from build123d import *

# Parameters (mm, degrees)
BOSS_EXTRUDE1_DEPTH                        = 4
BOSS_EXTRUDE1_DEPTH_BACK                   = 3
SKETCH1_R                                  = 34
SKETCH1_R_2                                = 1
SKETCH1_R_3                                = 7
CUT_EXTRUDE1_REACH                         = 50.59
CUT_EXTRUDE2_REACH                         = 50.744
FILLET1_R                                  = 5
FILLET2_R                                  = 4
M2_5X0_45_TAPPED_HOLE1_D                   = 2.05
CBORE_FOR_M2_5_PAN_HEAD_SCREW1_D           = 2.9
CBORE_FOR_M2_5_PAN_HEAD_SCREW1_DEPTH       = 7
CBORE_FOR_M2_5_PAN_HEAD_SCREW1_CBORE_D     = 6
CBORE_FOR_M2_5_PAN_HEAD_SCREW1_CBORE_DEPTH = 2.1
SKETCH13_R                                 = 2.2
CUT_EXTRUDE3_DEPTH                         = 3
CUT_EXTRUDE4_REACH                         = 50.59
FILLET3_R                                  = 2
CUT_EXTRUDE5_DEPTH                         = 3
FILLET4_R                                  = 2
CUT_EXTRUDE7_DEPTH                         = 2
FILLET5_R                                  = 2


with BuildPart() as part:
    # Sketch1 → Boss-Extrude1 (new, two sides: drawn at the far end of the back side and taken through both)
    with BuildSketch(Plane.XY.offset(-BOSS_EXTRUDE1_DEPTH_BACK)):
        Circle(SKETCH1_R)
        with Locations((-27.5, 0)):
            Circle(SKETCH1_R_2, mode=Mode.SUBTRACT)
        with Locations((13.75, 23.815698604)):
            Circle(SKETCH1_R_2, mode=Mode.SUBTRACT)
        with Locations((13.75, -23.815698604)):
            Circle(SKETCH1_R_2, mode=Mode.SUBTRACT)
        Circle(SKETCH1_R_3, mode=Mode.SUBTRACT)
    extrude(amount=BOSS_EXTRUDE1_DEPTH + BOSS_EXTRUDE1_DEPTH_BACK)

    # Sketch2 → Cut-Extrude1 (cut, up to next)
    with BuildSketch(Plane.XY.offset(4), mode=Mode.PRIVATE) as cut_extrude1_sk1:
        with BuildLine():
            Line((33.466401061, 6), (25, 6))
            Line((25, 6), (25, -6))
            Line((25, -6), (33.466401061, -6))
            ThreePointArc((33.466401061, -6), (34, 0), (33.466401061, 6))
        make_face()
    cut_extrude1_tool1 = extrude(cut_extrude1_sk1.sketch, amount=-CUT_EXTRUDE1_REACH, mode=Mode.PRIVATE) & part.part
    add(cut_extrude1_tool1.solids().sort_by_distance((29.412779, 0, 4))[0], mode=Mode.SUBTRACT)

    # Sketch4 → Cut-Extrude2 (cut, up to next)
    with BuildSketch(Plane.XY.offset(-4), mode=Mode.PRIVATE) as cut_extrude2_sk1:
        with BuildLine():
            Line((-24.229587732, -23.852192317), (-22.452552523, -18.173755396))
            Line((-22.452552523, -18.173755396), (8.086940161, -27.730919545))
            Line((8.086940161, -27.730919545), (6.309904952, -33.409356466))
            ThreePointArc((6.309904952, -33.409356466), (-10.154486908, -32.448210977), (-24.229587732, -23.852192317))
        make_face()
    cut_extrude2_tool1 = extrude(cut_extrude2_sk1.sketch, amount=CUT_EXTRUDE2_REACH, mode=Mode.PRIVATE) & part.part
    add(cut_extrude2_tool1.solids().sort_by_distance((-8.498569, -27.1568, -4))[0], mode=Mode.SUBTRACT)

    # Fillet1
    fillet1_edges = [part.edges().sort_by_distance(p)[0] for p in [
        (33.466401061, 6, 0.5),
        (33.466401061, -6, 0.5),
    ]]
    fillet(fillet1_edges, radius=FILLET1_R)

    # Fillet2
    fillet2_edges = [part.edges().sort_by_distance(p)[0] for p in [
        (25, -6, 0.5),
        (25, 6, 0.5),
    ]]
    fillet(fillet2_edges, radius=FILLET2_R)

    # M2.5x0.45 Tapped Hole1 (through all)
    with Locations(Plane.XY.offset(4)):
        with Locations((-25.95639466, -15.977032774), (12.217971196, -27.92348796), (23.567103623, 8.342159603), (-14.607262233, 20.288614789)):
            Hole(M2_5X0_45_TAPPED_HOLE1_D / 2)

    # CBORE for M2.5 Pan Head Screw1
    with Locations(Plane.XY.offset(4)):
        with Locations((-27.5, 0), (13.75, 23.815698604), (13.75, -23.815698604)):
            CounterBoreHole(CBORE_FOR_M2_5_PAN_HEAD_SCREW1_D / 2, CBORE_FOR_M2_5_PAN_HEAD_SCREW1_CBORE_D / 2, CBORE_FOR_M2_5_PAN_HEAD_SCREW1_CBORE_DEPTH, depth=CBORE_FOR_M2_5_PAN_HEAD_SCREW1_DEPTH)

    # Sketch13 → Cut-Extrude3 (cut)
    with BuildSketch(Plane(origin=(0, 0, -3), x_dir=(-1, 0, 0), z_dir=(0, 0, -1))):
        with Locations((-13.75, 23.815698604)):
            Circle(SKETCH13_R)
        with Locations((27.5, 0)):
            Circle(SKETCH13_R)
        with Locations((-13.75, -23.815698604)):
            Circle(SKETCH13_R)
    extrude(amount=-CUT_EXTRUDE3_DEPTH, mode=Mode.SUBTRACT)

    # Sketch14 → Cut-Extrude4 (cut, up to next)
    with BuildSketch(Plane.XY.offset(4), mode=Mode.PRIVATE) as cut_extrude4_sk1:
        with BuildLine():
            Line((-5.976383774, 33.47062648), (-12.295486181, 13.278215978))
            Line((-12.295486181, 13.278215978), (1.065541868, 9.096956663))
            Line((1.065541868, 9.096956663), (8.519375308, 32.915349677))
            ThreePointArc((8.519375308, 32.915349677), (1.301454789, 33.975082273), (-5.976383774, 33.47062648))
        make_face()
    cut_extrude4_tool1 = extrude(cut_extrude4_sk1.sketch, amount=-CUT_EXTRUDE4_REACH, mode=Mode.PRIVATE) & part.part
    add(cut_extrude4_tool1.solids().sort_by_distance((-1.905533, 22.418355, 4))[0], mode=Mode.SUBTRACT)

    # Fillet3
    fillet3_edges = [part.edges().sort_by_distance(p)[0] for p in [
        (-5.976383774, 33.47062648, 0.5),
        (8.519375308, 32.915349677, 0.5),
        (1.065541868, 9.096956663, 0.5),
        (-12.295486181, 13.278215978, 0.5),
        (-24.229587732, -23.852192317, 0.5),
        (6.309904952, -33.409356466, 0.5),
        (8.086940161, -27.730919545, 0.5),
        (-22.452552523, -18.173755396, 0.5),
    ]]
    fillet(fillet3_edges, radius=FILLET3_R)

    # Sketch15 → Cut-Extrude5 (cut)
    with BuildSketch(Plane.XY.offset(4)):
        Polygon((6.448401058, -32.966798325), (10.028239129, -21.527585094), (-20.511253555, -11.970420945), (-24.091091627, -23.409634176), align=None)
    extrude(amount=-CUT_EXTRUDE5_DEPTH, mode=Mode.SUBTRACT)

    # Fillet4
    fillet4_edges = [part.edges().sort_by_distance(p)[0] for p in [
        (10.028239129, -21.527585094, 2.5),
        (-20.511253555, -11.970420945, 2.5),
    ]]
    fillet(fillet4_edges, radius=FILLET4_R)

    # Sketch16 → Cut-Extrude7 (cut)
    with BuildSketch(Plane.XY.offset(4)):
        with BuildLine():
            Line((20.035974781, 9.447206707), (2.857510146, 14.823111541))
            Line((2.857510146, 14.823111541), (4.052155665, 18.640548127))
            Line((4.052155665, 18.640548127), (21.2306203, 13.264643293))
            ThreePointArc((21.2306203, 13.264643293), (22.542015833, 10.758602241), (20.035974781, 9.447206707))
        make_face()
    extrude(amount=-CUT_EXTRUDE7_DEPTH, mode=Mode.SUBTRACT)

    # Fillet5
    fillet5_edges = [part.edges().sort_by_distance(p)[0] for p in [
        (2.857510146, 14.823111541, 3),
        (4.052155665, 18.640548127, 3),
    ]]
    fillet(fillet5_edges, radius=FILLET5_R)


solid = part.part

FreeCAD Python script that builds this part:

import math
import FreeCAD as App
import Part
import Sketcher


def edges_at(feature, points):
    """Names of the edges that pass closest to the given points."""
    edges = feature.Shape.Edges
    near = lambda p: min(range(len(edges)), key=lambda i: edges[i].distToShape(Part.Vertex(*p))[0])
    return sorted({f"Edge{near(p) + 1}" for p in points})


def add_polygon(sketch, points):
    """Adds a closed chain of lines whose ends are joined by coincident constraints."""
    first, n = sketch.GeometryCount, len(points)
    for a, b in zip(points, points[1:] + points[:1]):
        sketch.addGeometry(Part.LineSegment(App.Vector(*a, 0), App.Vector(*b, 0)), False)
    for i in range(n):
        sketch.addConstraint(Sketcher.Constraint("Coincident", first + i, 2, first + (i + 1) % n, 1))

doc = App.newDocument("Part")
body = doc.addObject("PartDesign::Body", "Body")

# Sketch on XY plane
sketch1 = body.newObject("Sketcher::SketchObject", "Sketch")
sketch1.AttachmentSupport = (doc.getObject("XY_Plane"), [""])
sketch1.MapMode = "FlatFace"
sketch1.addGeometry([
    Part.Circle(App.Vector(0, 0, 0), App.Vector(0, 0, 1), 34),  # 0
    Part.Circle(App.Vector(13.8, -23.8, 0), App.Vector(0, 0, 1), 1),  # 1
    Part.Circle(App.Vector(-27.5, 0, 0), App.Vector(0, 0, 1), 1),  # 2
    Part.Circle(App.Vector(0, 0, 0), App.Vector(0, 0, 1), 7),  # 3
    Part.Circle(App.Vector(13.8, 23.8, 0), App.Vector(0, 0, 1), 1),  # 4
], False)
sketch1.addConstraint([
    Sketcher.Constraint("Coincident", 0, 3, -1, 1),
    Sketcher.Constraint("Coincident", 3, 3, -1, 1),
    Sketcher.Constraint("Equal", 1, 2),
    Sketcher.Constraint("Equal", 2, 4),
    Sketcher.Constraint("Symmetric", 1, 3, 4, 3, -1),
    Sketcher.Constraint("PointOnObject", 2, 3, -1),
    Sketcher.Constraint("Diameter", 0, 68.0),
    Sketcher.Constraint("Diameter", 1, 2.0),
    Sketcher.Constraint("Diameter", 3, 14.0),
    Sketcher.Constraint("DistanceX", 2, 3, -1, 1, 27.5),
    Sketcher.Constraint("DistanceX", -1, 1, 1, 3, 13.75),
    Sketcher.Constraint("DistanceY", 1, 3, -1, 1, 23.815699),
])
pad1 = body.newObject("PartDesign::Pad", "Pad")
pad1.Profile = sketch1
pad1.Type = "TwoLengths"
pad1.Length = 4
pad1.Length2 = 3

# Sketch on XY plane
sketch2 = body.newObject("Sketcher::SketchObject", "Sketch001")
sketch2.AttachmentSupport = (doc.getObject("XY_Plane"), [""])
sketch2.MapMode = "FlatFace"
sketch2.AttachmentOffset = App.Placement(App.Vector(0, 0, 4), App.Rotation())
sketch2.addGeometry([
    Part.LineSegment(App.Vector(33, 6, 0), App.Vector(25, 6, 0)),
    Part.LineSegment(App.Vector(25, 6, 0), App.Vector(25, -6, 0)),
    Part.LineSegment(App.Vector(25, -6, 0), App.Vector(33, -6, 0)),
    Part.ArcOfCircle(Part.Circle(App.Vector(0, 0, 0), App.Vector(0, 0, 1), 34), math.radians(-10), math.radians(10)),
], False)
sketch2.addConstraint([
    Sketcher.Constraint("Coincident", 0, 2, 1, 1),
    Sketcher.Constraint("Coincident", 1, 2, 2, 1),
    Sketcher.Constraint("Coincident", 2, 2, 3, 1),
    Sketcher.Constraint("Coincident", 3, 2, 0, 1),
    Sketcher.Constraint("Horizontal", 0),
    Sketcher.Constraint("Vertical", 1),
    Sketcher.Constraint("Horizontal", 2),
    Sketcher.Constraint("Coincident", 3, 3, -1, 1),
    Sketcher.Constraint("Vertical", 2, 2, 3, 2),
    Sketcher.Constraint("Radius", 3, 34.0),
    Sketcher.Constraint("DistanceY", 1, 2, 1, 1, 12.0),
    Sketcher.Constraint("DistanceX", -1, 1, 0, 2, 25.0),
])
pocket1 = body.newObject("PartDesign::Pocket", "Pocket")
pocket1.Profile = sketch2
pocket1.Type = "UpToFirst"

# Sketch on XY plane
sketch3 = body.newObject("Sketcher::SketchObject", "Sketch002")
sketch3.AttachmentSupport = (doc.getObject("XY_Plane"), [""])
sketch3.MapMode = "FlatFace"
sketch3.AttachmentOffset = App.Placement(App.Vector(0, 0, -4), App.Rotation())
sketch3.addGeometry([
    Part.LineSegment(App.Vector(-22, -18, 0), App.Vector(-24, -24, 0)),
    Part.ArcOfCircle(Part.Circle(App.Vector(0, 0, 0), App.Vector(0, 0, 1), 34), math.radians(-135), math.radians(-79)),
    Part.LineSegment(App.Vector(6, -33, 0), App.Vector(8, -28, 0)),
    Part.LineSegment(App.Vector(8, -28, 0), App.Vector(-22, -18, 0)),
], False)
sketch3.addConstraint([
    Sketcher.Constraint("Coincident", 0, 2, 1, 1),
    Sketcher.Constraint("Coincident", 1, 2, 2, 1),
    Sketcher.Constraint("Coincident", 2, 2, 3, 1),
    Sketcher.Constraint("Coincident", 3, 2, 0, 1),
    Sketcher.Constraint("Coincident", 1, 3, -1, 1),
    Sketcher.Constraint("Parallel", 0, 2),
    Sketcher.Constraint("Perpendicular", 2, 3),
    Sketcher.Constraint("Equal", 0, 2),
    Sketcher.Constraint("Radius", 1, 34.0),
    Sketcher.Constraint("Distance", 3, 32.0),
    Sketcher.Constraint("Distance", 0, 5.95),
    Sketcher.Constraint("DistanceY", 1, 2, 3, 2, 15.235601),
])
pocket2 = body.newObject("PartDesign::Pocket", "Pocket001")
pocket2.Profile = sketch3
pocket2.Length = 8
pocket2.Reversed = True
doc.recompute()

fillet = body.newObject("PartDesign::Fillet", "Fillet")
fillet.Base = (pocket2, edges_at(pocket2, [(33.466, 6, 0.5), (33.466, -6, 0.5)]))
fillet.Radius = 5
doc.recompute()

fillet2 = body.newObject("PartDesign::Fillet", "Fillet001")
fillet2.Base = (fillet, edges_at(fillet, [(25, -6, 0.5), (25, 6, 0.5)]))
fillet2.Radius = 4

# Sketch on XY plane
sketch4 = body.newObject("Sketcher::SketchObject", "Sketch003")
sketch4.AttachmentSupport = (doc.getObject("XY_Plane"), [""])
sketch4.MapMode = "FlatFace"
sketch4.AttachmentOffset = App.Placement(App.Vector(0, 0, 4), App.Rotation())
sketch4.addGeometry([
    Part.Circle(App.Vector(-26, -16, 0), App.Vector(0, 0, 1), 1),
    Part.Circle(App.Vector(12.2, -27.9, 0), App.Vector(0, 0, 1), 1),
    Part.Circle(App.Vector(23.6, 8.3, 0), App.Vector(0, 0, 1), 1),
    Part.Circle(App.Vector(-14.6, 20.3, 0), App.Vector(0, 0, 1), 1),
], False)
sketch4.addConstraint([
    Sketcher.Constraint("Equal", 0, 1),
    Sketcher.Constraint("Equal", 1, 2),
    Sketcher.Constraint("Equal", 2, 3),
    Sketcher.Constraint("Diameter", 0, 2.05),
    Sketcher.Constraint("DistanceX", 0, 3, 2, 3, 49.523498),
    Sketcher.Constraint("DistanceX", -1, 1, 1, 3, 12.217971),
    Sketcher.Constraint("DistanceY", -1, 1, 2, 3, 8.34216),
    Sketcher.Constraint("DistanceX", 0, 3, -1, 1, 25.956395),
    Sketcher.Constraint("DistanceY", 0, 3, -1, 1, 15.977033),
    Sketcher.Constraint("DistanceY", 1, 3, -1, 1, 27.923488),
    Sketcher.Constraint("DistanceX", 3, 3, -1, 1, 14.607262),
    Sketcher.Constraint("DistanceY", -1, 1, 3, 3, 20.288615),
])
doc.recompute()
hole = body.newObject("PartDesign::Hole", "Hole")
hole.Profile = sketch4
hole.ThreadType = "None"
hole.Diameter = 2.05
hole.DepthType = "ThroughAll"

# Sketch on XY plane
sketch5 = body.newObject("Sketcher::SketchObject", "Sketch004")
sketch5.AttachmentSupport = (doc.getObject("XY_Plane"), [""])
sketch5.MapMode = "FlatFace"
sketch5.AttachmentOffset = App.Placement(App.Vector(0, 0, 4), App.Rotation())
sketch5.addGeometry([
    Part.Circle(App.Vector(-27.5, 0, 0), App.Vector(0, 0, 1), 1.4),
    Part.Circle(App.Vector(13.8, 23.8, 0), App.Vector(0, 0, 1), 1.4),
    Part.Circle(App.Vector(13.8, -23.8, 0), App.Vector(0, 0, 1), 1.4),
], False)
sketch5.addConstraint([
    Sketcher.Constraint("Equal", 0, 1),
    Sketcher.Constraint("Equal", 1, 2),
    Sketcher.Constraint("Symmetric", 1, 3, 2, 3, -1),
    Sketcher.Constraint("PointOnObject", 0, 3, -1),
    Sketcher.Constraint("Diameter", 0, 2.9),
    Sketcher.Constraint("DistanceX", 0, 3, -1, 1, 27.5),
    Sketcher.Constraint("DistanceX", -1, 1, 1, 3, 13.75),
    Sketcher.Constraint("DistanceY", -1, 1, 1, 3, 23.815699),
])
doc.recompute()
hole2 = body.newObject("PartDesign::Hole", "Hole001")
hole2.Profile = sketch5
hole2.ThreadType = "None"
hole2.Diameter = 2.9
hole2.DepthType = "Dimension"
hole2.Depth = 7
hole2.DrillPoint = "Flat"
hole2.HoleCutType = "Counterbore"
hole2.HoleCutDiameter = 6
hole2.HoleCutDepth = 2.1

# Sketch on XY plane
sketch6 = body.newObject("Sketcher::SketchObject", "Sketch005")
sketch6.AttachmentSupport = (doc.getObject("XY_Plane"), [""])
sketch6.MapMode = "FlatFace"
sketch6.AttachmentOffset = App.Placement(App.Vector(0, 0, -3), App.Rotation())
sketch6.addGeometry([
    Part.Circle(App.Vector(13.8, 23.8, 0), App.Vector(0, 0, 1), 2.2),
    Part.Circle(App.Vector(-27.5, 0, 0), App.Vector(0, 0, 1), 2.2),
    Part.Circle(App.Vector(13.8, -23.8, 0), App.Vector(0, 0, 1), 2.2),
], False)
sketch6.addConstraint([
    Sketcher.Constraint("Equal", 0, 1),
    Sketcher.Constraint("Equal", 1, 2),
    Sketcher.Constraint("Symmetric", 0, 3, 2, 3, -1),
    Sketcher.Constraint("PointOnObject", 1, 3, -1),
    Sketcher.Constraint("Diameter", 0, 4.4),
    Sketcher.Constraint("DistanceX", 1, 3, -1, 1, 27.5),
    Sketcher.Constraint("DistanceX", -1, 1, 0, 3, 13.75),
    Sketcher.Constraint("DistanceY", -1, 1, 0, 3, 23.815699),
])
pocket3 = body.newObject("PartDesign::Pocket", "Pocket002")
pocket3.Profile = sketch6
pocket3.Length = 3
pocket3.Reversed = True

# Sketch on XY plane
sketch7 = body.newObject("Sketcher::SketchObject", "Sketch006")
sketch7.AttachmentSupport = (doc.getObject("XY_Plane"), [""])
sketch7.MapMode = "FlatFace"
sketch7.AttachmentOffset = App.Placement(App.Vector(0, 0, 4), App.Rotation())
sketch7.addGeometry([
    Part.LineSegment(App.Vector(-6, 33, 0), App.Vector(-12, 13, 0)),
    Part.LineSegment(App.Vector(-12, 13, 0), App.Vector(1, 9, 0)),
    Part.LineSegment(App.Vector(1, 9, 0), App.Vector(9, 33, 0)),
    Part.ArcOfCircle(Part.Circle(App.Vector(0, 0, 0), App.Vector(0, 0, 1), 34), math.radians(75), math.radians(100)),
], False)
sketch7.addConstraint([
    Sketcher.Constraint("Coincident", 0, 2, 1, 1),
    Sketcher.Constraint("Coincident", 1, 2, 2, 1),
    Sketcher.Constraint("Coincident", 2, 2, 3, 1),
    Sketcher.Constraint("Coincident", 3, 2, 0, 1),
    Sketcher.Constraint("Coincident", 3, 3, -1, 1),
    Sketcher.Constraint("Perpendicular", 0, 1),
    Sketcher.Constraint("Perpendicular", 1, 2),
    Sketcher.Constraint("Radius", 3, 34.0),
    Sketcher.Constraint("Distance", 1, 14.0),
    Sketcher.Constraint("DistanceX", -1, 1, 1, 2, 1.065542),
    Sketcher.Constraint("DistanceY", -1, 1, 2, 2, 32.91535),
    Sketcher.Constraint("DistanceX", 0, 2, 1, 2, 13.361028),
])
pocket4 = body.newObject("PartDesign::Pocket", "Pocket003")
pocket4.Profile = sketch7
pocket4.Type = "UpToFirst"
doc.recompute()

fillet3 = body.newObject("PartDesign::Fillet", "Fillet002")
fillet3.Base = (pocket4, edges_at(pocket4, [
    (-5.976, 33.471, 0.5),
    (8.519, 32.915, 0.5),
    (1.066, 9.097, 0.5),
    (-12.295, 13.278, 0.5),
    (-24.23, -23.852, 0.5),
    (6.31, -33.409, 0.5),
    (8.087, -27.731, 0.5),
    (-22.453, -18.174, 0.5),
]))
fillet3.Radius = 2

# Sketch on XY plane
sketch8 = body.newObject("Sketcher::SketchObject", "Sketch007")
sketch8.AttachmentSupport = (doc.getObject("XY_Plane"), [""])
sketch8.MapMode = "FlatFace"
sketch8.AttachmentOffset = App.Placement(App.Vector(0, 0, 4), App.Rotation())
add_polygon(sketch8, [(6, -33), (10, -22), (-21, -12), (-24, -23)])  # lines 0-3
sketch8.addConstraint([
    Sketcher.Constraint("Perpendicular", 0, 1),
    Sketcher.Constraint("Perpendicular", 1, 2),
    Sketcher.Constraint("Perpendicular", 2, 3),
    Sketcher.Constraint("Distance", 1, 32.0),
    Sketcher.Constraint("DistanceX", -1, 1, 3, 2, 6.448401),
    Sketcher.Constraint("DistanceY", 3, 2, -1, 1, 32.966798),
    Sketcher.Constraint("DistanceX", -1, 1, 0, 2, 10.028239),
    Sketcher.Constraint("DistanceY", 1, 2, -1, 1, 11.970421),
])
pocket5 = body.newObject("PartDesign::Pocket", "Pocket004")
pocket5.Profile = sketch8
pocket5.Length = 3
doc.recompute()

fillet4 = body.newObject("PartDesign::Fillet", "Fillet003")
fillet4.Base = (pocket5, edges_at(pocket5, [(10.028, -21.528, 2.5), (-20.511, -11.97, 2.5)]))
fillet4.Radius = 2

# Sketch on XY plane
sketch9 = body.newObject("Sketcher::SketchObject", "Sketch008")
sketch9.AttachmentSupport = (doc.getObject("XY_Plane"), [""])
sketch9.MapMode = "FlatFace"
sketch9.AttachmentOffset = App.Placement(App.Vector(0, 0, 4), App.Rotation())
sketch9.addGeometry([
    Part.LineSegment(App.Vector(2.9, 14.8, 0), App.Vector(20, 9.4, 0)),
    Part.ArcOfCircle(Part.Circle(App.Vector(20.6, 11.4, 0), App.Vector(0, 0, 1), 2), math.radians(-107), math.radians(73)),
    Part.LineSegment(App.Vector(21.2, 13.3, 0), App.Vector(4.1, 18.6, 0)),
    Part.LineSegment(App.Vector(4.1, 18.6, 0), App.Vector(2.9, 14.8, 0)),
], False)
sketch9.addConstraint([
    Sketcher.Constraint("Tangent", 0, 2, 1, 1),
    Sketcher.Constraint("Tangent", 1, 2, 2, 1),
    Sketcher.Constraint("Coincident", 2, 2, 3, 1),
    Sketcher.Constraint("Coincident", 3, 2, 0, 1),
    Sketcher.Constraint("Parallel", 0, 2),
    Sketcher.Constraint("Perpendicular", 2, 3),
    Sketcher.Constraint("Radius", 1, 2.0),
    Sketcher.Constraint("Distance", 0, 18.0),
    Sketcher.Constraint("DistanceX", -1, 1, 1, 2, 21.23062),
    Sketcher.Constraint("DistanceY", -1, 1, 2, 2, 18.640548),
    Sketcher.Constraint("DistanceX", -1, 1, 3, 2, 2.85751),
])
pocket6 = body.newObject("PartDesign::Pocket", "Pocket005")
pocket6.Profile = sketch9
pocket6.Length = 2
doc.recompute()

fillet5 = body.newObject("PartDesign::Fillet", "Fillet004")
fillet5.Base = (pocket6, edges_at(pocket6, [(2.858, 14.823, 3), (4.052, 18.641, 3)]))
fillet5.Radius = 2

doc.recompute()
